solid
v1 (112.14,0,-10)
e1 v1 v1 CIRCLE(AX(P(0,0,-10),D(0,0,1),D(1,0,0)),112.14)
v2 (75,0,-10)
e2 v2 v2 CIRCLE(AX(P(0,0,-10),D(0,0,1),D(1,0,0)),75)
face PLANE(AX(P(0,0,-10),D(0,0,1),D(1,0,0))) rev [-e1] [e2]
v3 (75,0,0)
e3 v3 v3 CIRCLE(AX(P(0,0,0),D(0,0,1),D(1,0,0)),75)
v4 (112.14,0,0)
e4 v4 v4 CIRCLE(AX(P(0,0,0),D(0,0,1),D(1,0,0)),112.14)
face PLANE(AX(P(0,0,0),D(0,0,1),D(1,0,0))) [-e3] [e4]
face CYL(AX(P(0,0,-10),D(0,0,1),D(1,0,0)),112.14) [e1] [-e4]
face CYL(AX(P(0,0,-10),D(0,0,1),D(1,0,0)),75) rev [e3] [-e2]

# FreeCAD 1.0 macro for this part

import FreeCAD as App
import Part
import Sketcher

doc = App.newDocument("Part")
body = doc.addObject("PartDesign::Body", "Body")

# Sketch on XY plane
sketch1 = body.newObject("Sketcher::SketchObject", "Sketch")
sketch1.AttachmentSupport = (doc.getObject("XY_Plane"), [""])
sketch1.MapMode = "FlatFace"
sketch1.addGeometry([
    Part.Circle(App.Vector(0, 0, 0), App.Vector(0, 0, 1), 112.14),
    Part.Circle(App.Vector(0, 0, 0), App.Vector(0, 0, 1), 75),
], False)
sketch1.addConstraint([
    Sketcher.Constraint("Coincident", 0, 3, -1, 1),
    Sketcher.Constraint("Coincident", 1, 3, -1, 1),
    Sketcher.Constraint("Diameter", 1, 150.0),
    Sketcher.Constraint("Diameter", 0, 224.28),
])
pad1 = body.newObject("PartDesign::Pad", "Pad")
pad1.Profile = sketch1
pad1.Length = 10
pad1.Reversed = True

doc.recompute()
